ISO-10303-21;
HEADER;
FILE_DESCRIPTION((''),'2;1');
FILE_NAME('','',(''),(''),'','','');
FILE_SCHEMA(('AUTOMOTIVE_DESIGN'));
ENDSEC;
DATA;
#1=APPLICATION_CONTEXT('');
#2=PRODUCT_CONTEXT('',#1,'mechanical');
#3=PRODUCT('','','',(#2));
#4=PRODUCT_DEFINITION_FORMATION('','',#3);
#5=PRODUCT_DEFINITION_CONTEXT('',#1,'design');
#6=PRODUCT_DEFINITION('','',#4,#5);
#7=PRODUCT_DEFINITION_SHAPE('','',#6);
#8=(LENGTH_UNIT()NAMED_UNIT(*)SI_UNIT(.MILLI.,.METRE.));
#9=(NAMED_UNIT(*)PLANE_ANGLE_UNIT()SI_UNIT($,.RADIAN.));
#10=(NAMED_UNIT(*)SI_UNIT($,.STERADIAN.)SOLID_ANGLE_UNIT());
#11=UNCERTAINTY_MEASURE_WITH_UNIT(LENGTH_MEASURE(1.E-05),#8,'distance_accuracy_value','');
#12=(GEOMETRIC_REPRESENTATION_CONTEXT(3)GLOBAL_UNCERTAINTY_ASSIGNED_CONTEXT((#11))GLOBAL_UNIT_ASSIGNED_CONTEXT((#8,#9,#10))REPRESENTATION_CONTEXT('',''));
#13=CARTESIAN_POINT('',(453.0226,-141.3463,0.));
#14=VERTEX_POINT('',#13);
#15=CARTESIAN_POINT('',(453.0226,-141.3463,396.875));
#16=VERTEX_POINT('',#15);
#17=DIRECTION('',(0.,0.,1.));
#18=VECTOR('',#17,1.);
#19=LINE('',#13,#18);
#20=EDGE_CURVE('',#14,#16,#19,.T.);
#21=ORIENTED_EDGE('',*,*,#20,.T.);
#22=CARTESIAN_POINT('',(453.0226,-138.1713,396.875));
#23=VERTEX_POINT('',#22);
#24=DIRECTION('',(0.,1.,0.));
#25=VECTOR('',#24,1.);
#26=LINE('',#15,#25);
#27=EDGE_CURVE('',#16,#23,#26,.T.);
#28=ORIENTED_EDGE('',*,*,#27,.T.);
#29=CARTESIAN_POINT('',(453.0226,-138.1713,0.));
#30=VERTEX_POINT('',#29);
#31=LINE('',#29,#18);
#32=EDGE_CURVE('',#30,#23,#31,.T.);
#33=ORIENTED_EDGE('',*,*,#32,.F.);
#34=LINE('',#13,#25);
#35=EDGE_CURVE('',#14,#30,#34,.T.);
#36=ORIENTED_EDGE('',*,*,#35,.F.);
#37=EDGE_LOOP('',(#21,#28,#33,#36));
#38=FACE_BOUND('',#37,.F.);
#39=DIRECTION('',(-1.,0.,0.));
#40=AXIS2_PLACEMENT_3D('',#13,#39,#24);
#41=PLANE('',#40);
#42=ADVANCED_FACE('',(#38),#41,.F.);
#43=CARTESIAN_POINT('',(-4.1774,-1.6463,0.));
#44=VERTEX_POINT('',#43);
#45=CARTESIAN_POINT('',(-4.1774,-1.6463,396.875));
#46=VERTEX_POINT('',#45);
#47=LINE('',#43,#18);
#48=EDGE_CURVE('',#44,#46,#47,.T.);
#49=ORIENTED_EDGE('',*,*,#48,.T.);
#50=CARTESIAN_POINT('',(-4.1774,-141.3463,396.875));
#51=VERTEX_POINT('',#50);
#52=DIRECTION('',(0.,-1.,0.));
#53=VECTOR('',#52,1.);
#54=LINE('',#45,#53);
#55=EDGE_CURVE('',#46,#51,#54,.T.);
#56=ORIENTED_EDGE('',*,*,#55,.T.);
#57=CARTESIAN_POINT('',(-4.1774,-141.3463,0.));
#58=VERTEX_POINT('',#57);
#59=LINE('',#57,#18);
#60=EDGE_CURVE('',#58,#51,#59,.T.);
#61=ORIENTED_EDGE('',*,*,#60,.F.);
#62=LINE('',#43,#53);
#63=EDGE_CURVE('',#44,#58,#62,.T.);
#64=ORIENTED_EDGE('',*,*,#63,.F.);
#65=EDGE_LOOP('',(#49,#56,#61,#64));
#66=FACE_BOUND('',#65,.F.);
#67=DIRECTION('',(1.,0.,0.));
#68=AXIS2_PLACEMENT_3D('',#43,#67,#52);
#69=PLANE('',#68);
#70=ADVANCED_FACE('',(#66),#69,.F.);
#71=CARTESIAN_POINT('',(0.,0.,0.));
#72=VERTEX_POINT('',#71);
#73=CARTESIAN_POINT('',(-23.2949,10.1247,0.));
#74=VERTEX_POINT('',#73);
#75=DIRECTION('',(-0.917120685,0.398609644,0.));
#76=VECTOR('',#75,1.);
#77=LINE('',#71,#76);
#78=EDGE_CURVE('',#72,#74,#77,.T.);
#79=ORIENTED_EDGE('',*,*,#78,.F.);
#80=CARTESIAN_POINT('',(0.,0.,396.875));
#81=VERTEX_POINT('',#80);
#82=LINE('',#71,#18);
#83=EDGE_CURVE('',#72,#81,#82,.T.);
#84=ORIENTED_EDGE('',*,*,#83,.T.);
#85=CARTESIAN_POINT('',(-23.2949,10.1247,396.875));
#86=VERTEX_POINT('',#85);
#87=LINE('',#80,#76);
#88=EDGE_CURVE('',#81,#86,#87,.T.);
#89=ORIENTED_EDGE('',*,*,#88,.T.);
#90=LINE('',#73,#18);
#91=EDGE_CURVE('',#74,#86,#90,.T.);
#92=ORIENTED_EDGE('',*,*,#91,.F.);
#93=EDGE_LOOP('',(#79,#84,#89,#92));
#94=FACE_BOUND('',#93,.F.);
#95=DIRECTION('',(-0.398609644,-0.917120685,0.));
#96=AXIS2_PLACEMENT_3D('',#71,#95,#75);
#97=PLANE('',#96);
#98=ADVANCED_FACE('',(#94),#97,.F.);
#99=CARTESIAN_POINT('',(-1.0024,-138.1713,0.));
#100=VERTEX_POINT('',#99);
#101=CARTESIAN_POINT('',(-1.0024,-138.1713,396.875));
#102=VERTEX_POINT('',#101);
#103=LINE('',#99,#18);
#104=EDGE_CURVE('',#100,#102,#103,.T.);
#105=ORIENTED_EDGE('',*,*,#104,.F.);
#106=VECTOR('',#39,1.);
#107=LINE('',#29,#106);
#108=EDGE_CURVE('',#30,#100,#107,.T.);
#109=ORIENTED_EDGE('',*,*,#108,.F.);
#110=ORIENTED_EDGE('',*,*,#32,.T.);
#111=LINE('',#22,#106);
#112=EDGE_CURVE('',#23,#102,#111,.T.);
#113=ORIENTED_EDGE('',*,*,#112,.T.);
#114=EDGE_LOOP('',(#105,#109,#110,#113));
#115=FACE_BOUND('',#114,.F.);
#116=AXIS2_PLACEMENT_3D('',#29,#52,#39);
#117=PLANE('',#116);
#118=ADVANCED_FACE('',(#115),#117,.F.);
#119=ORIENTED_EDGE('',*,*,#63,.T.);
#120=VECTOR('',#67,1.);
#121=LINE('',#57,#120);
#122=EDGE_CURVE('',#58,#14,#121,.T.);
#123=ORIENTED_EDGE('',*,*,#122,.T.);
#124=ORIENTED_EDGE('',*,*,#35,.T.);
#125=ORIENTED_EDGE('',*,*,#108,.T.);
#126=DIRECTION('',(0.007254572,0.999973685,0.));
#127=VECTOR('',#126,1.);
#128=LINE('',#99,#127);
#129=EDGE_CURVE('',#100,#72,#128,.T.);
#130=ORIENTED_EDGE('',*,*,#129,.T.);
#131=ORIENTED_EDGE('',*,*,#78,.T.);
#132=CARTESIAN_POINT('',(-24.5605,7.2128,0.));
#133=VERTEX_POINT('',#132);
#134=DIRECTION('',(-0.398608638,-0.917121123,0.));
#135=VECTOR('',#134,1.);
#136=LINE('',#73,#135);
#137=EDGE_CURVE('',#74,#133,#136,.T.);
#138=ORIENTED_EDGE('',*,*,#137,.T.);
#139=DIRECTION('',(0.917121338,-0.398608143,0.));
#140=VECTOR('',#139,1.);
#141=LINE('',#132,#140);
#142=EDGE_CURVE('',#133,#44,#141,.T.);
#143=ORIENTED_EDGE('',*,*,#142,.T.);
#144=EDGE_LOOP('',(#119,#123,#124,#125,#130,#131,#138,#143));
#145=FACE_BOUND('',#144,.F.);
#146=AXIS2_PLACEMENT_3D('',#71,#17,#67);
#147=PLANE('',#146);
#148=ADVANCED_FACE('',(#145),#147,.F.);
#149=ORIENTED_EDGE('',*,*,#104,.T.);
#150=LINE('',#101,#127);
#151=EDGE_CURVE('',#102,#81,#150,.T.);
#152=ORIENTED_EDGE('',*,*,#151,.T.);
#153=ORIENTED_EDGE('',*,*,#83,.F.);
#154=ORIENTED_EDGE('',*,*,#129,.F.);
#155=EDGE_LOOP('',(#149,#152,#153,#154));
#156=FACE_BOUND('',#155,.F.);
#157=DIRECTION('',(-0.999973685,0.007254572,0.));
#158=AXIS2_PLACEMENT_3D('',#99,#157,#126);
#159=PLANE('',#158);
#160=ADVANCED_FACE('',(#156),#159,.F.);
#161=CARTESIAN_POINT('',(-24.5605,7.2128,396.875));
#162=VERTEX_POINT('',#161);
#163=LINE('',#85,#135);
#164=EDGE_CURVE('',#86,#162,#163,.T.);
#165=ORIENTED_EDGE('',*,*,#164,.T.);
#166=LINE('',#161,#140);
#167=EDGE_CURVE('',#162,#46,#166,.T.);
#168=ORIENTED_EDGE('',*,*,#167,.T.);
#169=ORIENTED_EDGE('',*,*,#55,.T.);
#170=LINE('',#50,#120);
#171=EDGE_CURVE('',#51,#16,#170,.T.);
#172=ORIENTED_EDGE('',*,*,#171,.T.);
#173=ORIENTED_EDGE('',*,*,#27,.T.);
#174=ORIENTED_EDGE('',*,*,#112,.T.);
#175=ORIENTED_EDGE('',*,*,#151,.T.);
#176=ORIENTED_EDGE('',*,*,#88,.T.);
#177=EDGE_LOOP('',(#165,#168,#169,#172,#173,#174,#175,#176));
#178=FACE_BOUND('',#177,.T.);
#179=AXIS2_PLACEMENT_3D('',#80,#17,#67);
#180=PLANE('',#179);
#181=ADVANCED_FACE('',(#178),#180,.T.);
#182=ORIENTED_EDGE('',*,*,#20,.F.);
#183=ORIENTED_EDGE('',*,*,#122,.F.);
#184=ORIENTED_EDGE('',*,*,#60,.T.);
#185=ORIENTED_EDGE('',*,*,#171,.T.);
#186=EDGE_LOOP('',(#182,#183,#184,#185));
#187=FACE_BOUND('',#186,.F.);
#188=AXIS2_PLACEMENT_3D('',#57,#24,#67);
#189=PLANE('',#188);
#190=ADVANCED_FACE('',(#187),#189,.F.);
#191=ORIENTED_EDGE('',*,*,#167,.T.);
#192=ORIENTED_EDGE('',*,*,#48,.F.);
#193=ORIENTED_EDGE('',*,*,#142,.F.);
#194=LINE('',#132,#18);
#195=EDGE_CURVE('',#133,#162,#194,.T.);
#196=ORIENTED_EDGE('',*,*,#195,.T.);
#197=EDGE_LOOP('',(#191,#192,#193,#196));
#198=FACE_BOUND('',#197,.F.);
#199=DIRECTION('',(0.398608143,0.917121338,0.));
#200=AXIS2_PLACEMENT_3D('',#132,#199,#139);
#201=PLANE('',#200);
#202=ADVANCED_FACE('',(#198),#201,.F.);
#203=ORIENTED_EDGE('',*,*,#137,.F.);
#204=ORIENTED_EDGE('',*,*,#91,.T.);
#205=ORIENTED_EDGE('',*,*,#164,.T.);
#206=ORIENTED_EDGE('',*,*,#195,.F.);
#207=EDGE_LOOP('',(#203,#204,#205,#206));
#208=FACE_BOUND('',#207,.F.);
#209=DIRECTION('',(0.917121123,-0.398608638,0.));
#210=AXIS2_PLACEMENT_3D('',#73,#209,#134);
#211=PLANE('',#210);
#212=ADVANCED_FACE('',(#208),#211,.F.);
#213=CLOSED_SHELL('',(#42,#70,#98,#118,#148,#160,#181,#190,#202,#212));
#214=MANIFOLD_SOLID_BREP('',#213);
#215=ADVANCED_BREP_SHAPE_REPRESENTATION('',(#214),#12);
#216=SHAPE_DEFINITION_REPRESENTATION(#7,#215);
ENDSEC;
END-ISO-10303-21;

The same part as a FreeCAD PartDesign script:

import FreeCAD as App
import Part
import Sketcher

V = App.Vector
Q = App.Units.Quantity

doc = App.newDocument("Part")
body = doc.addObject("PartDesign::Body", "Body")

# Sketch on XY plane
sketch1 = doc.addObject("Sketcher::SketchObject", "Sketch")
body.addObject(sketch1)
sketch1.AttachmentSupport = (doc.XY_Plane, [""])
sketch1.MapMode = "FlatFace"
sketch1.addGeometry(Part.LineSegment(V(-1.0024, -138.1713, 0), V(0, 0, 0)), False)
sketch1.addGeometry(Part.LineSegment(V(0, 0, 0), V(-23.2949, 10.1247, 0)), False)
sketch1.addGeometry(Part.LineSegment(V(-23.2949, 10.1247, 0), V(-24.5605, 7.2128, 0)), False)
sketch1.addGeometry(Part.LineSegment(V(-24.5605, 7.2128, 0), V(-4.1774, -1.6463, 0)), False)
sketch1.addGeometry(Part.LineSegment(V(-4.1774, -1.6463, 0), V(-4.1774, -141.3463, 0)), False)
sketch1.addGeometry(Part.LineSegment(V(-4.1774, -141.3463, 0), V(453.0226, -141.3463, 0)), False)
sketch1.addGeometry(Part.LineSegment(V(453.0226, -141.3463, 0), V(453.0226, -138.1713, 0)), False)
sketch1.addGeometry(Part.LineSegment(V(453.0226, -138.1713, 0), V(-1.0024, -138.1713, 0)), False)
sketch1.addConstraint(Sketcher.Constraint("Coincident", 0, 2, 1, 1))
sketch1.addConstraint(Sketcher.Constraint("Coincident", 1, 2, 2, 1))
sketch1.addConstraint(Sketcher.Constraint("Coincident", 2, 2, 3, 1))
sketch1.addConstraint(Sketcher.Constraint("Coincident", 3, 2, 4, 1))
sketch1.addConstraint(Sketcher.Constraint("Coincident", 4, 2, 5, 1))
sketch1.addConstraint(Sketcher.Constraint("Coincident", 5, 2, 6, 1))
sketch1.addConstraint(Sketcher.Constraint("Coincident", 6, 2, 7, 1))
sketch1.addConstraint(Sketcher.Constraint("Coincident", 7, 2, 0, 1))
sketch1.addConstraint(Sketcher.Constraint("Vertical", 4))
sketch1.addConstraint(Sketcher.Constraint("Horizontal", 5))
sketch1.addConstraint(Sketcher.Constraint("Vertical", 6))
sketch1.addConstraint(Sketcher.Constraint("Horizontal", 7))
sketch1.addConstraint(Sketcher.Constraint("Coincident", 0, 2, -1, 1))
sketch1.addConstraint(Sketcher.Constraint("Perpendicular", 1, 2))
sketch1.addConstraint(Sketcher.Constraint("Perpendicular", 2, 3))
sketch1.addConstraint(Sketcher.Constraint("DistanceX", 5, 1, 5, 2, Q("18 in")))
sketch1.addConstraint(Sketcher.Constraint("Distance", 1, Q("1 in")))
sketch1.addConstraint(Sketcher.Constraint("DistanceY", 4, 2, 4, 1, Q("5.5 in")))
sketch1.addConstraint(Sketcher.Constraint("DistanceX", 7, 2, 7, 1, Q("17.875 in")))
sketch1.addConstraint(Sketcher.Constraint("DistanceY", 6, 1, 6, 2, Q("0.125 in")))
sketch1.addConstraint(Sketcher.Constraint("Distance", 2, Q("0.125 in")))
sketch1.addConstraint(Sketcher.Constraint("Distance", 3, Q("0.875 in")))
sketch1.addConstraint(Sketcher.Constraint("Angle", 3, Q("-23.4912 deg")))
pad1 = doc.addObject("PartDesign::Pad", "Pad")
body.addObject(pad1)
pad1.Profile = sketch1
pad1.Length = Q("15.625 in")

doc.recompute()
